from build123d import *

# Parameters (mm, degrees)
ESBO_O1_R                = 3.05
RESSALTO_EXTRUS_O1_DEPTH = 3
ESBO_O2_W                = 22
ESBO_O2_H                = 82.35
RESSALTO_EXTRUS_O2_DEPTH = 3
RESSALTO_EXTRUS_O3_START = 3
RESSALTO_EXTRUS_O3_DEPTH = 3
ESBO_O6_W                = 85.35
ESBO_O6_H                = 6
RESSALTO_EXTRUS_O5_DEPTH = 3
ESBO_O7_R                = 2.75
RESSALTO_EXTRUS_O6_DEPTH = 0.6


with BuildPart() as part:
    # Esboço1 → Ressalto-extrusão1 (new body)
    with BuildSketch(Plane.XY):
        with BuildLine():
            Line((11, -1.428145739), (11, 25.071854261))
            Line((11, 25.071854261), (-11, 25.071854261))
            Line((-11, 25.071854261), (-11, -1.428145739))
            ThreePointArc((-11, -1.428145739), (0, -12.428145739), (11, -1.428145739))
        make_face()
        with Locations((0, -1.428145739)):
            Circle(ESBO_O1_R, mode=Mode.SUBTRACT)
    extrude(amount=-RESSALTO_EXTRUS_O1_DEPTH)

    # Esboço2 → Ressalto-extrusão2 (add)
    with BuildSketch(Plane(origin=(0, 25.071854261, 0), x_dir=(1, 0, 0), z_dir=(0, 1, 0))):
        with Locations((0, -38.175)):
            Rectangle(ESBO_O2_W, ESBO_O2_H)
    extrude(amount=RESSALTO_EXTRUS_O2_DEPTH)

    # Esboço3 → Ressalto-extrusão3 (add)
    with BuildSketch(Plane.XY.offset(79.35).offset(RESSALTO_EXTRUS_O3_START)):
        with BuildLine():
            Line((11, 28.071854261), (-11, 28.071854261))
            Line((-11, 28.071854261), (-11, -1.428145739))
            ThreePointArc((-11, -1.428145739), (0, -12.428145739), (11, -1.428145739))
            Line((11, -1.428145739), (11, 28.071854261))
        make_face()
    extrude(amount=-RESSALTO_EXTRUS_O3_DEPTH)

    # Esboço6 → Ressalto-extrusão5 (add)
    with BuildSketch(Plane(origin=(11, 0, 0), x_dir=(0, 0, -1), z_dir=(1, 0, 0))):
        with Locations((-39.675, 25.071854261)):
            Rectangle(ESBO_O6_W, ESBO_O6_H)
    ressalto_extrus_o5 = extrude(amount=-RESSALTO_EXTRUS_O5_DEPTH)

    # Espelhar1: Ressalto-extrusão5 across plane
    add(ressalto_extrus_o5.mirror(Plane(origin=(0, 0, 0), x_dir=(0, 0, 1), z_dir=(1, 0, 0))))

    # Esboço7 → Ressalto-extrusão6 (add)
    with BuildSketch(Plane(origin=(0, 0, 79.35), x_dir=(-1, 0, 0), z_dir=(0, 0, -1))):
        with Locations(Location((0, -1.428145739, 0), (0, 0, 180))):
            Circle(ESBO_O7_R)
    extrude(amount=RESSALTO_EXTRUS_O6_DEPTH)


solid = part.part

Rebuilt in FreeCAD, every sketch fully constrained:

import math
import FreeCAD as App
import Part
import Sketcher
from FreeCAD import Vector
Q = App.Units.Quantity


def add_polygon(sketch, points):
    """Adds a closed chain of lines whose ends are joined by coincident constraints."""
    first, n = sketch.GeometryCount, len(points)
    for a, b in zip(points, points[1:] + points[:1]):
        sketch.addGeometry(Part.LineSegment(App.Vector(*a, 0), App.Vector(*b, 0)), False)
    for i in range(n):
        sketch.addConstraint(Sketcher.Constraint("Coincident", first + i, 2, first + (i + 1) % n, 1))

doc = App.newDocument("Part")
params = doc.addObject("Spreadsheet::Sheet", "Params")
for row, (alias, value) in enumerate([
    ("sketch1_radius", "11 mm"),
    ("sketch1_diameter", "6.1 mm"),
    ("sketch1_height", "26.5 mm"),
    ("pad1_length", "3 mm"),
    ("sketch2_width", "22 mm"),
    ("sketch2_height", "82.35 mm"),
    ("pad2_length", "3 mm"),
    ("sketch3_radius", "11 mm"),
    ("sketch3_height", "29.5 mm"),
    ("pad3_length", "3 mm"),
    ("sketch4_width", "6 mm"),
    ("sketch4_height", "85.35 mm"),
    ("pad4_length", "3 mm"),
    ("sketch5_diameter", "5.5 mm"),
    ("pad5_length", "0.6 mm"),
], start=1):
    params.set(f"A{row}", alias)
    params.set(f"B{row}", "=" + value)
    params.setAlias(f"B{row}", alias)

body = doc.addObject("PartDesign::Body", "Body")

# Sketch on XY plane
sketch1 = doc.addObject("Sketcher::SketchObject", "Sketch")
body.addObject(sketch1)
sketch1.AttachmentSupport = (doc.XY_Plane, [""])
sketch1.MapMode = "FlatFace"
sketch1.addGeometry(Part.LineSegment(Vector(11, -1.428146, 0), Vector(11, 25.071854, 0)), False)
sketch1.addGeometry(Part.LineSegment(Vector(11, 25.071854, 0), Vector(-11, 25.071854, 0)), False)
sketch1.addGeometry(Part.LineSegment(Vector(-11, 25.071854, 0), Vector(-11, -1.428146, 0)), False)
sketch1.addGeometry(Part.ArcOfCircle(Part.Circle(Vector(0, -1.428146, 0), Vector(0, 0, 1), 11), math.radians(180), math.radians(360)), False)
sketch1.addGeometry(Part.Circle(Vector(0, -1.428146, 0), Vector(0, 0, 1), 3.05), False)
sketch1.addConstraint(Sketcher.Constraint("Coincident", 0, 2, 1, 1))
sketch1.addConstraint(Sketcher.Constraint("Coincident", 1, 2, 2, 1))
sketch1.addConstraint(Sketcher.Constraint("Tangent", 2, 2, 3, 1))
sketch1.addConstraint(Sketcher.Constraint("Tangent", 3, 2, 0, 1))
sketch1.addConstraint(Sketcher.Constraint("Vertical", 0))
sketch1.addConstraint(Sketcher.Constraint("Horizontal", 1))
sketch1.addConstraint(Sketcher.Constraint("Vertical", 2))
sketch1.addConstraint(Sketcher.Constraint("Coincident", 4, 3, 3, 3))
sketch1.addConstraint(Sketcher.Constraint("PointOnObject", 3, 3, -2))
sketch1.addConstraint(Sketcher.Constraint("Radius", 3, Q("11 mm")))
sketch1.addConstraint(Sketcher.Constraint("Diameter", 4, Q("6.1 mm")))
sketch1.addConstraint(Sketcher.Constraint("DistanceY", 0, 1, 0, 2, Q("26.5 mm")))
sketch1.addConstraint(Sketcher.Constraint("DistanceY", 3, 3, -1, 1, Q("1.428146 mm")))
sketch1.setExpression("Constraints[9]", "Params.sketch1_radius")
sketch1.setExpression("Constraints[10]", "Params.sketch1_diameter")
sketch1.setExpression("Constraints[11]", "Params.sketch1_height")
pad1 = doc.addObject("PartDesign::Pad", "Pad")
body.addObject(pad1)
pad1.Profile = sketch1
pad1.setExpression("Length", "Params.pad1_length")
pad1.Reversed = True

# Sketch on XZ plane
sketch2 = doc.addObject("Sketcher::SketchObject", "Sketch001")
body.addObject(sketch2)
sketch2.AttachmentSupport = (doc.XZ_Plane, [""])
sketch2.MapMode = "FlatFace"
sketch2.AttachmentOffset = App.Placement(Vector(0, 0, -25.071854), App.Rotation())
add_polygon(sketch2, [(-11, -3), (-11, 79.35), (11, 79.35), (11, -3)])  # lines 0-3
sketch2.addConstraint(Sketcher.Constraint("Vertical", 0))
sketch2.addConstraint(Sketcher.Constraint("Horizontal", 1))
sketch2.addConstraint(Sketcher.Constraint("Vertical", 2))
sketch2.addConstraint(Sketcher.Constraint("Horizontal", 3))
sketch2.addConstraint(Sketcher.Constraint("DistanceX", 1, 1, 1, 2, Q("22 mm")))
sketch2.addConstraint(Sketcher.Constraint("DistanceX", 0, 2, -1, 1, Q("11 mm")))
sketch2.addConstraint(Sketcher.Constraint("DistanceY", 2, 2, -1, 1, Q("3 mm")))
sketch2.addConstraint(Sketcher.Constraint("DistanceY", 0, 1, 0, 2, Q("82.35 mm")))
sketch2.setExpression("Constraints[8]", "Params.sketch2_width")
sketch2.setExpression("Constraints[11]", "Params.sketch2_height")
pad2 = doc.addObject("PartDesign::Pad", "Pad001")
body.addObject(pad2)
pad2.Profile = sketch2
pad2.setExpression("Length", "Params.pad2_length")
pad2.Reversed = True

# Sketch on XY plane
sketch3 = doc.addObject("Sketcher::SketchObject", "Sketch002")
body.addObject(sketch3)
sketch3.AttachmentSupport = (doc.XY_Plane, [""])
sketch3.MapMode = "FlatFace"
sketch3.AttachmentOffset = App.Placement(Vector(0, 0, 82.35), App.Rotation())
sketch3.addGeometry(Part.LineSegment(Vector(11, 28.071854, 0), Vector(-11, 28.071854, 0)), False)
sketch3.addGeometry(Part.LineSegment(Vector(-11, 28.071854, 0), Vector(-11, -1.428146, 0)), False)
sketch3.addGeometry(Part.ArcOfCircle(Part.Circle(Vector(0, -1.428146, 0), Vector(0, 0, 1), 11), math.radians(180), math.radians(360)), False)
sketch3.addGeometry(Part.LineSegment(Vector(11, -1.428146, 0), Vector(11, 28.071854, 0)), False)
sketch3.addConstraint(Sketcher.Constraint("Coincident", 0, 2, 1, 1))
sketch3.addConstraint(Sketcher.Constraint("Tangent", 1, 2, 2, 1))
sketch3.addConstraint(Sketcher.Constraint("Tangent", 2, 2, 3, 1))
sketch3.addConstraint(Sketcher.Constraint("Coincident", 3, 2, 0, 1))
sketch3.addConstraint(Sketcher.Constraint("Horizontal", 0))
sketch3.addConstraint(Sketcher.Constraint("Vertical", 1))
sketch3.addConstraint(Sketcher.Constraint("Vertical", 3))
sketch3.addConstraint(Sketcher.Constraint("PointOnObject", 2, 3, -2))
sketch3.addConstraint(Sketcher.Constraint("Radius", 2, Q("11 mm")))
sketch3.addConstraint(Sketcher.Constraint("DistanceY", 1, 2, 1, 1, Q("29.5 mm")))
sketch3.addConstraint(Sketcher.Constraint("DistanceY", 2, 3, -1, 1, Q("1.428146 mm")))
sketch3.setExpression("Constraints[8]", "Params.sketch3_radius")
sketch3.setExpression("Constraints[9]", "Params.sketch3_height")
pad3 = doc.addObject("PartDesign::Pad", "Pad002")
body.addObject(pad3)
pad3.Profile = sketch3
pad3.setExpression("Length", "Params.pad3_length")
pad3.Reversed = True

# Sketch on YZ plane
sketch4 = doc.addObject("Sketcher::SketchObject", "Sketch003")
body.addObject(sketch4)
sketch4.AttachmentSupport = (doc.YZ_Plane, [""])
sketch4.MapMode = "FlatFace"
sketch4.AttachmentOffset = App.Placement(Vector(0, 0, 11), App.Rotation())
add_polygon(sketch4, [(28.071854, 82.35), (22.071854, 82.35), (22.071854, -3), (28.071854, -3)])  # lines 0-3
sketch4.addConstraint(Sketcher.Constraint("Horizontal", 0))
sketch4.addConstraint(Sketcher.Constraint("Vertical", 1))
sketch4.addConstraint(Sketcher.Constraint("Horizontal", 2))
sketch4.addConstraint(Sketcher.Constraint("Vertical", 3))
sketch4.addConstraint(Sketcher.Constraint("DistanceX", 0, 2, 0, 1, Q("6 mm")))
sketch4.addConstraint(Sketcher.Constraint("DistanceY", 1, 2, -1, 1, Q("3 mm")))
sketch4.addConstraint(Sketcher.Constraint("DistanceY", 1, 2, 1, 1, Q("85.35 mm")))
sketch4.addConstraint(Sketcher.Constraint("DistanceX", -1, 1, 0, 2, Q("22.071854 mm")))
sketch4.setExpression("Constraints[8]", "Params.sketch4_width")
sketch4.setExpression("Constraints[10]", "Params.sketch4_height")
pad4 = doc.addObject("PartDesign::Pad", "Pad003")
body.addObject(pad4)
pad4.Profile = sketch4
pad4.setExpression("Length", "Params.pad4_length")
pad4.Reversed = True
doc.recompute()

mirrored = doc.addObject("PartDesign::Mirrored", "Mirrored")
body.addObject(mirrored)
mirrored.Originals = [pad4]
mirrored.MirrorPlane = (doc.YZ_Plane, [""])
body.Tip = mirrored

# Sketch on XY plane
sketch5 = doc.addObject("Sketcher::SketchObject", "Sketch004")
body.addObject(sketch5)
sketch5.AttachmentSupport = (doc.XY_Plane, [""])
sketch5.MapMode = "FlatFace"
sketch5.AttachmentOffset = App.Placement(Vector(0, 0, 79.35), App.Rotation())
sketch5.addGeometry(Part.Circle(Vector(0, -1.428146, 0), Vector(0, 0, 1), 2.75), False)
sketch5.addConstraint(Sketcher.Constraint("PointOnObject", 0, 3, -2))
sketch5.addConstraint(Sketcher.Constraint("Diameter", 0, Q("5.5 mm")))
sketch5.addConstraint(Sketcher.Constraint("DistanceY", 0, 3, -1, 1, Q("1.428146 mm")))
sketch5.setExpression("Constraints[1]", "Params.sketch5_diameter")
pad5 = doc.addObject("PartDesign::Pad", "Pad004")
body.addObject(pad5)
pad5.Profile = sketch5
pad5.setExpression("Length", "Params.pad5_length")
pad5.Reversed = True

doc.recompute()
